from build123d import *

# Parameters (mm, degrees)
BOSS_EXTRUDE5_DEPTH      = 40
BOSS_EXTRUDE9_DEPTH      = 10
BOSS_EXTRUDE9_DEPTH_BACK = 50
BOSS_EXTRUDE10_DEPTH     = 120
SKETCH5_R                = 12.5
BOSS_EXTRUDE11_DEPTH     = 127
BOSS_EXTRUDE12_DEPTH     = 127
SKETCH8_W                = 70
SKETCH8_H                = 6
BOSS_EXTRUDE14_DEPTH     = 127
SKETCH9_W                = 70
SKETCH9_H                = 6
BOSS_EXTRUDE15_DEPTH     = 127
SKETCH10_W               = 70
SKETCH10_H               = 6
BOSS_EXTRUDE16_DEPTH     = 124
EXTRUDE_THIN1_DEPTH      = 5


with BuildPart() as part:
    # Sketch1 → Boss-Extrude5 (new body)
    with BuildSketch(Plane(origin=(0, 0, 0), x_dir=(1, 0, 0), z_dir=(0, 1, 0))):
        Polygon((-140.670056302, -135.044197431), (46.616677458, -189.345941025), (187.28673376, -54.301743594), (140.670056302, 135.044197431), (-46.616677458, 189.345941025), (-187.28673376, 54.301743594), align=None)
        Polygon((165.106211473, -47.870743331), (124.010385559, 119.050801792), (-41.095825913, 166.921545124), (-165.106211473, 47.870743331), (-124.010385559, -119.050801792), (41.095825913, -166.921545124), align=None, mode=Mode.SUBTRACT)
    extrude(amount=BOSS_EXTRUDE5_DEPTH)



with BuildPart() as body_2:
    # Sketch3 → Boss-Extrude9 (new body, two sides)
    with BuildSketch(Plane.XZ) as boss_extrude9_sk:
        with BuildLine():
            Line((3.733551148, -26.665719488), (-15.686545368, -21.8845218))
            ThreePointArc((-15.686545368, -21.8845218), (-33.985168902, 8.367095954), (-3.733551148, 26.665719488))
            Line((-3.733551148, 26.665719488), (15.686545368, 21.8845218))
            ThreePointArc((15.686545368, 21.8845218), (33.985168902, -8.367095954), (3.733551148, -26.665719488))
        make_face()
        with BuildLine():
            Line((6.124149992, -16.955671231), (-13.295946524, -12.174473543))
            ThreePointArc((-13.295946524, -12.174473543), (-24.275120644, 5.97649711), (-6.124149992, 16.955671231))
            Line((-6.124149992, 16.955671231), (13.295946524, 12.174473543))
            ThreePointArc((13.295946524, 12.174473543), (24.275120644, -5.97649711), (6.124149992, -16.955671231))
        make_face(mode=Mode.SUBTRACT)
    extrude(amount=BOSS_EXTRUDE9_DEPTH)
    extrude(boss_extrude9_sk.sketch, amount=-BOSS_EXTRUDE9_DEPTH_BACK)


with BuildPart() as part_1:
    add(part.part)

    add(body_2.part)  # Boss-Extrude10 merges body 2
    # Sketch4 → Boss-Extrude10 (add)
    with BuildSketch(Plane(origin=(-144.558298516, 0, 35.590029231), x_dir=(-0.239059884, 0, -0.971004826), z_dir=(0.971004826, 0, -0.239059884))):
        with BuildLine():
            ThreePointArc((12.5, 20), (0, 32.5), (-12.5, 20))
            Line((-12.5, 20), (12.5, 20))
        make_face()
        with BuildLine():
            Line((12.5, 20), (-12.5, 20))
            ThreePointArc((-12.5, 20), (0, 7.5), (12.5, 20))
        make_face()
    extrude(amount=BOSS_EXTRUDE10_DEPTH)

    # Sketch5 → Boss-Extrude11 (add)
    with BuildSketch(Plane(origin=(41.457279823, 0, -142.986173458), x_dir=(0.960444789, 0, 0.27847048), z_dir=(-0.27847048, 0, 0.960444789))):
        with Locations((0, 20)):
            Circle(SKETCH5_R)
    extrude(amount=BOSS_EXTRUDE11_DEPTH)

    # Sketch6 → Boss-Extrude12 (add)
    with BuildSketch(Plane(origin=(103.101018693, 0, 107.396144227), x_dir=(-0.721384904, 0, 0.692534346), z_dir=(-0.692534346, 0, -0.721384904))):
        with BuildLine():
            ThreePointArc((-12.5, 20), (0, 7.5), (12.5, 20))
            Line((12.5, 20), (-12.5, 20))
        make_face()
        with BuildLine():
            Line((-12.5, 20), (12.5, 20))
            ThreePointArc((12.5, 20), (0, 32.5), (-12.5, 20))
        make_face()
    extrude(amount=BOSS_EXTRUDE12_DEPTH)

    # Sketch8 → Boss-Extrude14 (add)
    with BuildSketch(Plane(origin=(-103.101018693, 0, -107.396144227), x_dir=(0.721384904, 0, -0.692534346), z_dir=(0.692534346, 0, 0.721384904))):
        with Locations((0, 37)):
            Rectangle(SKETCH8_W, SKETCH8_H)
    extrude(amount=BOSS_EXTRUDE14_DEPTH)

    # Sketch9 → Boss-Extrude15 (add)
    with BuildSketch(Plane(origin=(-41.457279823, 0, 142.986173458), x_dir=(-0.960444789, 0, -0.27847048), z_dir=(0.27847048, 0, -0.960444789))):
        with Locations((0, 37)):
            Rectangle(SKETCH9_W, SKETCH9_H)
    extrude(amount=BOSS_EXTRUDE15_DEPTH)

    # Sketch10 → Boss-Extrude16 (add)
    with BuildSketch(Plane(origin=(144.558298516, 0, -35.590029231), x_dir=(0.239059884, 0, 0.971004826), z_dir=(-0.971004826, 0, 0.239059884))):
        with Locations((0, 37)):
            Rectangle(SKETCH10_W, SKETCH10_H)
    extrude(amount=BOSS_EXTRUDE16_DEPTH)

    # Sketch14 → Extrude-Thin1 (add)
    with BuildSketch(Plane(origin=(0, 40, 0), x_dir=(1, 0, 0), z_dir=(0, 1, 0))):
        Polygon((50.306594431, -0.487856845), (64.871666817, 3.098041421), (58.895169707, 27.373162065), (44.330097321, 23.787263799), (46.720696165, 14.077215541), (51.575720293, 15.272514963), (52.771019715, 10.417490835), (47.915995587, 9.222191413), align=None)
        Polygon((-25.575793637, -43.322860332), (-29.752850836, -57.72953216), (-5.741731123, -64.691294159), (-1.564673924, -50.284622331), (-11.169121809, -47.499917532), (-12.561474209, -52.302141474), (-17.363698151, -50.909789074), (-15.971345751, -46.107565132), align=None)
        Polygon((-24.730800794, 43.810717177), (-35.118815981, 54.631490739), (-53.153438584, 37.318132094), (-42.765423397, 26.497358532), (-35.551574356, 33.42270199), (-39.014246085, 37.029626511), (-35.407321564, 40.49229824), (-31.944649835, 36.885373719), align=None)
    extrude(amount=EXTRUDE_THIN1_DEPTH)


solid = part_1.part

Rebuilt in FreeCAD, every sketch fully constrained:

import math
import FreeCAD as App
import Part
import Sketcher

V = App.Vector
Q = App.Units.Quantity


def add_polygon(sketch, points):
    """Adds a closed chain of lines whose ends are joined by coincident constraints."""
    first, n = sketch.GeometryCount, len(points)
    for a, b in zip(points, points[1:] + points[:1]):
        sketch.addGeometry(Part.LineSegment(App.Vector(*a, 0), App.Vector(*b, 0)), False)
    for i in range(n):
        sketch.addConstraint(Sketcher.Constraint("Coincident", first + i, 2, first + (i + 1) % n, 1))

doc = App.newDocument("Part")
body = doc.addObject("PartDesign::Body", "Body")

sketch1 = body.newObject("Sketcher::SketchObject", "Sketch")
sketch1.AttachmentSupport = (doc.getObject("XZ_Plane"), [""])
sketch1.MapMode = "FlatFace"
add_polygon(sketch1, [(-140.670056, 135.044197), (46.616677, 189.345941), (187.286734, 54.301744), (140.670056, -135.044197), (-46.616677, -189.345941), (-187.286734, -54.301744)])
add_polygon(sketch1, [(124.010386, -119.050802), (165.106211, 47.870743), (41.095826, 166.921545), (-124.010386, 119.050802), (-165.106211, -47.870743), (-41.095826, -166.921545)])
sketch1.addConstraint(Sketcher.Constraint("Symmetric", 0, 2, 3, 2, -1, 1))
sketch1.addConstraint(Sketcher.Constraint("Symmetric", 1, 2, 4, 2, -1, 1))
sketch1.addConstraint(Sketcher.Constraint("Symmetric", 2, 2, 5, 2, -1, 1))
sketch1.addConstraint(Sketcher.Constraint("Symmetric", 6, 2, 9, 2, -1, 1))
sketch1.addConstraint(Sketcher.Constraint("Symmetric", 7, 2, 10, 2, -1, 1))
sketch1.addConstraint(Sketcher.Constraint("Symmetric", 8, 2, 11, 2, -1, 1))
sketch1.addConstraint(Sketcher.Constraint("Parallel", 5, 6))
sketch1.addConstraint(Sketcher.Constraint("Parallel", 4, 7))
sketch1.addConstraint(Sketcher.Constraint("Parallel", 3, 8))
sketch1.addConstraint(Sketcher.Constraint("Equal", 0, 1))
sketch1.addConstraint(Sketcher.Constraint("Equal", 1, 2))
sketch1.addConstraint(Sketcher.Constraint("Equal", 6, 7))
sketch1.addConstraint(Sketcher.Constraint("Equal", 7, 8))
sketch1.addConstraint(Sketcher.Constraint("Distance", 0, Q("195 mm")))
sketch1.addConstraint(Sketcher.Constraint("DistanceY", 6, 2, 1, 2, Q("6.431 mm")))
sketch1.addConstraint(Sketcher.Constraint("DistanceY", -1, 1, 8, 2, Q("119.050802 mm")))
sketch1.addConstraint(Sketcher.Constraint("DistanceY", 6, 2, 7, 2, Q("119.050802 mm")))
sketch1.addConstraint(Sketcher.Constraint("Distance", 6, Q("171.905989 mm")))
pad1 = body.newObject("PartDesign::Pad", "Pad")
pad1.Profile = sketch1
pad1.Length = 40
pad1.Reversed = True
body2 = doc.addObject("PartDesign::Body", "Body001")

sketch2 = body2.newObject("Sketcher::SketchObject", "Sketch001")
sketch2.AttachmentSupport = (doc.getObject("XZ_Plane001"), [""])
sketch2.MapMode = "FlatFace"
sketch2.addGeometry(Part.LineSegment(V(-15.686545, -21.884522, 0), V(3.733551, -26.665719, 0)), False)
sketch2.addGeometry(Part.ArcOfCircle(Part.Circle(V(9.710048, -2.390599, 0), V(0, 0, 1), 25), math.radians(-103.831061), math.radians(76.168939)), False)
sketch2.addGeometry(Part.LineSegment(V(15.686545, 21.884522, 0), V(-3.733551, 26.665719, 0)), False)
sketch2.addGeometry(Part.ArcOfCircle(Part.Circle(V(-9.710048, 2.390599, 0), V(0, 0, 1), 25), math.radians(76.168939), math.radians(256.168939)), False)
sketch2.addGeometry(Part.LineSegment(V(6.12415, -16.955671, 0), V(-13.295947, -12.174474, 0)), False)
sketch2.addGeometry(Part.ArcOfCircle(Part.Circle(V(-9.710048, 2.390599, 0), V(0, 0, 1), 15), math.radians(76.168939), math.radians(256.168939)), False)
sketch2.addGeometry(Part.LineSegment(V(-6.12415, 16.955671, 0), V(13.295947, 12.174474, 0)), False)
sketch2.addGeometry(Part.ArcOfCircle(Part.Circle(V(9.710048, -2.390599, 0), V(0, 0, 1), 15), math.radians(-103.831061), math.radians(76.168939)), False)
sketch2.addConstraint(Sketcher.Constraint("Tangent", 0, 2, 1, 1))
sketch2.addConstraint(Sketcher.Constraint("Tangent", 1, 2, 2, 1))
sketch2.addConstraint(Sketcher.Constraint("Tangent", 2, 2, 3, 1))
sketch2.addConstraint(Sketcher.Constraint("Tangent", 3, 2, 0, 1))
sketch2.addConstraint(Sketcher.Constraint("Tangent", 4, 2, 5, 2))
sketch2.addConstraint(Sketcher.Constraint("Tangent", 5, 1, 6, 1))
sketch2.addConstraint(Sketcher.Constraint("Tangent", 6, 2, 7, 2))
sketch2.addConstraint(Sketcher.Constraint("Tangent", 7, 1, 4, 1))
sketch2.addConstraint(Sketcher.Constraint("Coincident", 5, 3, 3, 3))
sketch2.addConstraint(Sketcher.Constraint("Coincident", 7, 3, 1, 3))
sketch2.addConstraint(Sketcher.Constraint("Equal", 1, 3))
sketch2.addConstraint(Sketcher.Constraint("Equal", 5, 7))
sketch2.addConstraint(Sketcher.Constraint("Symmetric", 1, 3, 3, 3, -1, 1))
sketch2.addConstraint(Sketcher.Constraint("Radius", 1, Q("25 mm")))
sketch2.addConstraint(Sketcher.Constraint("Radius", 5, Q("15 mm")))
sketch2.addConstraint(Sketcher.Constraint("Distance", 0, Q("20 mm")))
sketch2.addConstraint(Sketcher.Constraint("DistanceY", 1, 3, -1, 1, Q("2.390599 mm")))
pad2 = body2.newObject("PartDesign::Pad", "Pad001")
pad2.Profile = sketch2
pad2.Type = "TwoLengths"
pad2.Length = 10
pad2.Length2 = 50
body.AllowCompound = True
doc.recompute()

boolean = body.newObject("PartDesign::Boolean", "Boolean")
boolean.Type = "Fuse"
boolean.addObjects([body2])

sketch3 = body.newObject("Sketcher::SketchObject", "Sketch002")
sketch3.Placement = App.Placement(V(-144.558299, 0, 35.590029), App.Rotation(V(-0.239059884, 0, -0.971004826), V(0, 1, 0), V(0.971004826, 0, -0.239059884), "ZXY"))
sketch3.addGeometry(Part.Circle(V(0, 20, 0), V(0, 0, 1), 12.5), False)
sketch3.addConstraint(Sketcher.Constraint("PointOnObject", 0, 3, -2))
sketch3.addConstraint(Sketcher.Constraint("Diameter", 0, Q("25 mm")))
sketch3.addConstraint(Sketcher.Constraint("DistanceY", -1, 1, 0, 3, Q("20 mm")))
pad3 = body.newObject("PartDesign::Pad", "Pad002")
pad3.Profile = sketch3
pad3.Length = 120

sketch4 = body.newObject("Sketcher::SketchObject", "Sketch003")
sketch4.Placement = App.Placement(V(41.45728, 0, -142.986173), App.Rotation(V(0.960444789, 0, 0.27847048), V(0, 1.000000001, 0), V(-0.27847048, 0, 0.960444789), "ZXY"))
sketch4.addGeometry(Part.Circle(V(0, 20, 0), V(0, 0, 1), 12.5), False)
sketch4.addConstraint(Sketcher.Constraint("PointOnObject", 0, 3, -2))
sketch4.addConstraint(Sketcher.Constraint("Diameter", 0, Q("25 mm")))
sketch4.addConstraint(Sketcher.Constraint("DistanceY", -1, 1, 0, 3, Q("20 mm")))
pad4 = body.newObject("PartDesign::Pad", "Pad003")
pad4.Profile = sketch4
pad4.Length = 127

sketch5 = body.newObject("Sketcher::SketchObject", "Sketch004")
sketch5.Placement = App.Placement(V(103.101019, 0, 107.396144), App.Rotation(V(-0.721384904, 0, 0.692534346), V(0, 1, 0), V(-0.692534346, 0, -0.721384904), "ZXY"))
sketch5.addGeometry(Part.Circle(V(0, 20, 0), V(0, 0, 1), 12.5), False)
sketch5.addConstraint(Sketcher.Constraint("PointOnObject", 0, 3, -2))
sketch5.addConstraint(Sketcher.Constraint("Diameter", 0, Q("25 mm")))
sketch5.addConstraint(Sketcher.Constraint("DistanceY", -1, 1, 0, 3, Q("20 mm")))
pad5 = body.newObject("PartDesign::Pad", "Pad004")
pad5.Profile = sketch5
pad5.Length = 127

sketch6 = body.newObject("Sketcher::SketchObject", "Sketch005")
sketch6.Placement = App.Placement(V(-103.101019, 0, -107.396144), App.Rotation(V(0.721384904, 0, -0.692534346), V(0, 1, 0), V(0.692534346, 0, 0.721384904), "ZXY"))
add_polygon(sketch6, [(-35, 40), (-35, 34), (35, 34), (35, 40)])
sketch6.addConstraint(Sketcher.Constraint("Vertical", 0))
sketch6.addConstraint(Sketcher.Constraint("Horizontal", 1))
sketch6.addConstraint(Sketcher.Constraint("Vertical", 2))
sketch6.addConstraint(Sketcher.Constraint("Horizontal", 3))
sketch6.addConstraint(Sketcher.Constraint("DistanceX", 1, 1, 1, 2, Q("70 mm")))
sketch6.addConstraint(Sketcher.Constraint("DistanceY", 0, 2, 0, 1, Q("6 mm")))
sketch6.addConstraint(Sketcher.Constraint("DistanceX", 0, 2, -1, 1, Q("35 mm")))
sketch6.addConstraint(Sketcher.Constraint("DistanceY", -1, 1, 0, 2, Q("34 mm")))
pad6 = body.newObject("PartDesign::Pad", "Pad005")
pad6.Profile = sketch6
pad6.Length = 127

sketch7 = body.newObject("Sketcher::SketchObject", "Sketch006")
sketch7.Placement = App.Placement(V(-41.45728, 0, 142.986173), App.Rotation(V(-0.960444789, 0, -0.27847048), V(0, 1.000000001, 0), V(0.27847048, 0, -0.960444789), "ZXY"))
add_polygon(sketch7, [(-35, 40), (-35, 34), (35, 34), (35, 40)])
sketch7.addConstraint(Sketcher.Constraint("Vertical", 0))
sketch7.addConstraint(Sketcher.Constraint("Horizontal", 1))
sketch7.addConstraint(Sketcher.Constraint("Vertical", 2))
sketch7.addConstraint(Sketcher.Constraint("Horizontal", 3))
sketch7.addConstraint(Sketcher.Constraint("DistanceX", 1, 1, 1, 2, Q("70 mm")))
sketch7.addConstraint(Sketcher.Constraint("DistanceY", 0, 2, 0, 1, Q("6 mm")))
sketch7.addConstraint(Sketcher.Constraint("DistanceX", 0, 2, -1, 1, Q("35 mm")))
sketch7.addConstraint(Sketcher.Constraint("DistanceY", -1, 1, 0, 2, Q("34 mm")))
pad7 = body.newObject("PartDesign::Pad", "Pad006")
pad7.Profile = sketch7
pad7.Length = 127

sketch8 = body.newObject("Sketcher::SketchObject", "Sketch007")
sketch8.Placement = App.Placement(V(144.558299, 0, -35.590029), App.Rotation(V(0.239059884, 0, 0.971004826), V(0, 1, 0), V(-0.971004826, 0, 0.239059884), "ZXY"))
add_polygon(sketch8, [(-35, 40), (-35, 34), (35, 34), (35, 40)])
sketch8.addConstraint(Sketcher.Constraint("Vertical", 0))
sketch8.addConstraint(Sketcher.Constraint("Horizontal", 1))
sketch8.addConstraint(Sketcher.Constraint("Vertical", 2))
sketch8.addConstraint(Sketcher.Constraint("Horizontal", 3))
sketch8.addConstraint(Sketcher.Constraint("DistanceX", 1, 1, 1, 2, Q("70 mm")))
sketch8.addConstraint(Sketcher.Constraint("DistanceY", 0, 2, 0, 1, Q("6 mm")))
sketch8.addConstraint(Sketcher.Constraint("DistanceX", 0, 2, -1, 1, Q("35 mm")))
sketch8.addConstraint(Sketcher.Constraint("DistanceY", -1, 1, 0, 2, Q("34 mm")))
pad8 = body.newObject("PartDesign::Pad", "Pad007")
pad8.Profile = sketch8
pad8.Length = 124

sketch9 = body.newObject("Sketcher::SketchObject", "Sketch008")
sketch9.AttachmentSupport = (doc.getObject("XZ_Plane"), [""])
sketch9.MapMode = "FlatFace"
sketch9.AttachmentOffset = App.Placement(V(0, 0, -40), App.Rotation())
add_polygon(sketch9, [(50.306594, 0.487857), (64.871667, -3.098041), (58.89517, -27.373162), (44.330097, -23.787264), (46.720696, -14.077216), (51.57572, -15.272515), (52.77102, -10.417491), (47.915996, -9.222191)])
add_polygon(sketch9, [(-25.575794, 43.32286), (-29.752851, 57.729532), (-5.741731, 64.691294), (-1.564674, 50.284622), (-11.169122, 47.499918), (-12.561474, 52.302141), (-17.363698, 50.909789), (-15.971346, 46.107565)])
add_polygon(sketch9, [(-24.730801, -43.810717), (-35.118816, -54.631491), (-53.153439, -37.318132), (-42.765423, -26.497359), (-35.551574, -33.422702), (-39.014246, -37.029627), (-35.407322, -40.492298), (-31.94465, -36.885374)])
sketch9.addConstraint(Sketcher.Constraint("Distance", 0, Q("15 mm")))
sketch9.addConstraint(Sketcher.Constraint("Distance", 1, Q("25 mm")))
sketch9.addConstraint(Sketcher.Constraint("Distance", 2, Q("15 mm")))
sketch9.addConstraint(Sketcher.Constraint("Distance", 3, Q("10 mm")))
sketch9.addConstraint(Sketcher.Constraint("Distance", 4, Q("5 mm")))
sketch9.addConstraint(Sketcher.Constraint("Distance", 5, Q("5 mm")))
sketch9.addConstraint(Sketcher.Constraint("Distance", 6, Q("5 mm")))
sketch9.addConstraint(Sketcher.Constraint("Distance", 7, Q("10 mm")))
sketch9.addConstraint(Sketcher.Constraint("Distance", 8, Q("15 mm")))
sketch9.addConstraint(Sketcher.Constraint("Distance", 9, Q("25 mm")))
sketch9.addConstraint(Sketcher.Constraint("Distance", 10, Q("15 mm")))
sketch9.addConstraint(Sketcher.Constraint("Distance", 11, Q("10 mm")))
sketch9.addConstraint(Sketcher.Constraint("Distance", 12, Q("5 mm")))
sketch9.addConstraint(Sketcher.Constraint("Distance", 13, Q("5 mm")))
sketch9.addConstraint(Sketcher.Constraint("Distance", 14, Q("5 mm")))
sketch9.addConstraint(Sketcher.Constraint("Distance", 15, Q("10 mm")))
sketch9.addConstraint(Sketcher.Constraint("Distance", 16, Q("15 mm")))
sketch9.addConstraint(Sketcher.Constraint("Distance", 17, Q("25 mm")))
sketch9.addConstraint(Sketcher.Constraint("Distance", 18, Q("15 mm")))
sketch9.addConstraint(Sketcher.Constraint("Distance", 19, Q("10 mm")))
sketch9.addConstraint(Sketcher.Constraint("Distance", 20, Q("5 mm")))
sketch9.addConstraint(Sketcher.Constraint("Distance", 21, Q("5 mm")))
sketch9.addConstraint(Sketcher.Constraint("Distance", 22, Q("5 mm")))
sketch9.addConstraint(Sketcher.Constraint("Distance", 23, Q("10 mm")))
sketch9.addConstraint(Sketcher.Constraint("DistanceX", 13, 2, -1, 1, Q("17.363698 mm")))
sketch9.addConstraint(Sketcher.Constraint("DistanceY", 19, 2, -1, 1, Q("33.422702 mm")))
sketch9.addConstraint(Sketcher.Constraint("DistanceY", 21, 2, -1, 1, Q("40.492298 mm")))
sketch9.addConstraint(Sketcher.Constraint("DistanceX", 23, 2, -1, 1, Q("24.730801 mm")))
sketch9.addConstraint(Sketcher.Constraint("DistanceY", 1, 2, 2, 2, Q("3.585898 mm")))
sketch9.addConstraint(Sketcher.Constraint("DistanceX", 2, 2, 3, 2, Q("2.390599 mm")))
sketch9.addConstraint(Sketcher.Constraint("DistanceY", 4, 2, 3, 2, Q("1.195299 mm")))
sketch9.addConstraint(Sketcher.Constraint("DistanceX", 4, 2, 5, 2, Q("1.195299 mm")))
sketch9.addConstraint(Sketcher.Constraint("DistanceX", 3, 2, 6, 2, Q("1.195299 mm")))
sketch9.addConstraint(Sketcher.Constraint("DistanceX", 6, 2, 7, 2, Q("2.390599 mm")))
sketch9.addConstraint(Sketcher.Constraint("DistanceX", 12, 2, 10, 2, Q("10.9968 mm")))
sketch9.addConstraint(Sketcher.Constraint("DistanceY", 16, 2, 6, 2, Q("45.409299 mm")))
sketch9.addConstraint(Sketcher.Constraint("DistanceX", 18, 2, 11, 2, Q("31.596302 mm")))
sketch9.addConstraint(Sketcher.Constraint("DistanceX", 18, 2, 21, 2, Q("7.358102 mm")))
sketch9.addConstraint(Sketcher.Constraint("DistanceY", 0, 2, -1, 1, Q("3.098041 mm")))
sketch9.addConstraint(Sketcher.Constraint("DistanceX", -1, 1, 1, 2, Q("58.89517 mm")))
sketch9.addConstraint(Sketcher.Constraint("DistanceX", 8, 2, -1, 1, Q("29.752851 mm")))
sketch9.addConstraint(Sketcher.Constraint("DistanceX", 9, 2, -1, 1, Q("5.741731 mm")))
sketch9.addConstraint(Sketcher.Constraint("DistanceX", 11, 2, -1, 1, Q("11.169122 mm")))
sketch9.addConstraint(Sketcher.Constraint("DistanceY", -1, 1, 12, 2, Q("52.302141 mm")))
sketch9.addConstraint(Sketcher.Constraint("DistanceY", -1, 1, 13, 2, Q("50.909789 mm")))
sketch9.addConstraint(Sketcher.Constraint("DistanceY", -1, 1, 15, 2, Q("43.32286 mm")))
sketch9.addConstraint(Sketcher.Constraint("DistanceX", 17, 2, -1, 1, Q("53.153439 mm")))
sketch9.addConstraint(Sketcher.Constraint("DistanceY", 18, 2, -1, 1, Q("26.497359 mm")))
pad9 = body.newObject("PartDesign::Pad", "Pad008")
pad9.Profile = sketch9
pad9.Length = 5
pad9.Reversed = True

doc.recompute()
